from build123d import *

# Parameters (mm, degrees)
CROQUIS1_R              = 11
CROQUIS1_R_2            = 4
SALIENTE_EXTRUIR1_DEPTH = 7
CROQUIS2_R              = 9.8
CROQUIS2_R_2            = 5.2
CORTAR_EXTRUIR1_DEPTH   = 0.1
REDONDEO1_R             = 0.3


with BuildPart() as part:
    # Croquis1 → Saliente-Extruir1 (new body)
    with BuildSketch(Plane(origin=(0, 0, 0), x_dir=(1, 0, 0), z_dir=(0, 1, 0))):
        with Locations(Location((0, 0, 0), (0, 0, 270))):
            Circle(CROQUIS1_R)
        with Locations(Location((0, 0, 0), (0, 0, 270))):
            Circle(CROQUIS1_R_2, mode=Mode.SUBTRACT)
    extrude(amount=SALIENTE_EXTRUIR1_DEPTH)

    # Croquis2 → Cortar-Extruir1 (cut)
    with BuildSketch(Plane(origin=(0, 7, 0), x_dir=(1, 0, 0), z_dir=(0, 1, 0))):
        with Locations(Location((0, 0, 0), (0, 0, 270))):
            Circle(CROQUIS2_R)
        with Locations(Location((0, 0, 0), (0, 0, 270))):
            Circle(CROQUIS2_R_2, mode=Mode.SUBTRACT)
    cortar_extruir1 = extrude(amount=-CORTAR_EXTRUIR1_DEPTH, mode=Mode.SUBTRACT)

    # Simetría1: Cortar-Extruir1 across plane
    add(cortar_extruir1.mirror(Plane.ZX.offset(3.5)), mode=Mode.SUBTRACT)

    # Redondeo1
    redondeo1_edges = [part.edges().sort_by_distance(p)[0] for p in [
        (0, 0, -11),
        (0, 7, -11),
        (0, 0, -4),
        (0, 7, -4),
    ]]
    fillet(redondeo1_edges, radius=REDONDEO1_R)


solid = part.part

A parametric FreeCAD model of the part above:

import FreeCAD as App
import Part
import Sketcher


def edges_at(feature, points):
    """Names of the edges that pass closest to the given points."""
    edges = feature.Shape.Edges
    near = lambda p: min(range(len(edges)), key=lambda i: edges[i].distToShape(Part.Vertex(*p))[0])
    return sorted({f"Edge{near(p) + 1}" for p in points})

doc = App.newDocument("Part")
params = doc.addObject("Spreadsheet::Sheet", "Params")
for row, (alias, value) in enumerate([
    ("sketch1_diameter", "22 mm"),
    ("sketch1_diameter2", "8 mm"),
    ("pad1_length", "7 mm"),
    ("sketch2_diameter", "19.6 mm"),
    ("sketch2_diameter2", "10.4 mm"),
    ("pocket1_length", "0.1 mm"),
    ("fillet_radius", "0.3 mm"),
], start=1):
    params.set(f"A{row}", alias)
    params.set(f"B{row}", "=" + value)
    params.setAlias(f"B{row}", alias)

body = doc.addObject("PartDesign::Body", "Body")

# Sketch on XZ plane
sketch1 = body.newObject("Sketcher::SketchObject", "Sketch")
sketch1.AttachmentSupport = (doc.getObject("XZ_Plane"), [""])
sketch1.MapMode = "FlatFace"
sketch1.addGeometry([
    Part.Circle(App.Vector(0, 0, 0), App.Vector(0, 0, 1), 11),
    Part.Circle(App.Vector(0, 0, 0), App.Vector(0, 0, 1), 4),
], False)
sketch1.addConstraint([
    Sketcher.Constraint("Coincident", 0, 3, -1, 1),
    Sketcher.Constraint("Coincident", 1, 3, -1, 1),
    Sketcher.Constraint("Diameter", 0, 22.0),
    Sketcher.Constraint("Diameter", 1, 8.0),
])
sketch1.setExpression("Constraints[2]", "Params.sketch1_diameter")
sketch1.setExpression("Constraints[3]", "Params.sketch1_diameter2")
pad1 = body.newObject("PartDesign::Pad", "Pad")
pad1.Profile = sketch1
pad1.setExpression("Length", "Params.pad1_length")
pad1.Reversed = True

# Sketch on XZ plane
sketch2 = body.newObject("Sketcher::SketchObject", "Sketch001")
sketch2.AttachmentSupport = (doc.getObject("XZ_Plane"), [""])
sketch2.MapMode = "FlatFace"
sketch2.AttachmentOffset = App.Placement(App.Vector(0, 0, -7), App.Rotation())
sketch2.addGeometry([
    Part.Circle(App.Vector(0, 0, 0), App.Vector(0, 0, 1), 10),
    Part.Circle(App.Vector(0, 0, 0), App.Vector(0, 0, 1), 5),
], False)
sketch2.addConstraint([
    Sketcher.Constraint("Coincident", 0, 3, -1, 1),
    Sketcher.Constraint("Coincident", 1, 3, -1, 1),
    Sketcher.Constraint("Diameter", 0, 19.6),
    Sketcher.Constraint("Diameter", 1, 10.4),
])
sketch2.setExpression("Constraints[2]", "Params.sketch2_diameter")
sketch2.setExpression("Constraints[3]", "Params.sketch2_diameter2")
pocket1 = body.newObject("PartDesign::Pocket", "Pocket")
pocket1.Profile = sketch2
pocket1.setExpression("Length", "Params.pocket1_length")
pocket1.Reversed = True
doc.recompute()

datumplane = body.newObject("PartDesign::Plane", "DatumPlane")
datumplane.AttachmentSupport = (doc.getObject("XZ_Plane"), [""])
datumplane.MapMode = "FlatFace"
datumplane.AttachmentOffset = App.Placement(App.Vector(0, 0, -3.5), App.Rotation())
mirrored = body.newObject("PartDesign::Mirrored", "Mirrored")
mirrored.Originals = [pocket1]
mirrored.MirrorPlane = (datumplane, [""])
body.Tip = mirrored
doc.recompute()

fillet = body.newObject("PartDesign::Fillet", "Fillet")
fillet.Base = (mirrored, edges_at(mirrored, [
    (0, 0, -11),
    (0, 7, -11),
    (0, 0, -4),
    (0, 7, -4),
]))
fillet.setExpression("Radius", "Params.fillet_radius")

doc.recompute()
